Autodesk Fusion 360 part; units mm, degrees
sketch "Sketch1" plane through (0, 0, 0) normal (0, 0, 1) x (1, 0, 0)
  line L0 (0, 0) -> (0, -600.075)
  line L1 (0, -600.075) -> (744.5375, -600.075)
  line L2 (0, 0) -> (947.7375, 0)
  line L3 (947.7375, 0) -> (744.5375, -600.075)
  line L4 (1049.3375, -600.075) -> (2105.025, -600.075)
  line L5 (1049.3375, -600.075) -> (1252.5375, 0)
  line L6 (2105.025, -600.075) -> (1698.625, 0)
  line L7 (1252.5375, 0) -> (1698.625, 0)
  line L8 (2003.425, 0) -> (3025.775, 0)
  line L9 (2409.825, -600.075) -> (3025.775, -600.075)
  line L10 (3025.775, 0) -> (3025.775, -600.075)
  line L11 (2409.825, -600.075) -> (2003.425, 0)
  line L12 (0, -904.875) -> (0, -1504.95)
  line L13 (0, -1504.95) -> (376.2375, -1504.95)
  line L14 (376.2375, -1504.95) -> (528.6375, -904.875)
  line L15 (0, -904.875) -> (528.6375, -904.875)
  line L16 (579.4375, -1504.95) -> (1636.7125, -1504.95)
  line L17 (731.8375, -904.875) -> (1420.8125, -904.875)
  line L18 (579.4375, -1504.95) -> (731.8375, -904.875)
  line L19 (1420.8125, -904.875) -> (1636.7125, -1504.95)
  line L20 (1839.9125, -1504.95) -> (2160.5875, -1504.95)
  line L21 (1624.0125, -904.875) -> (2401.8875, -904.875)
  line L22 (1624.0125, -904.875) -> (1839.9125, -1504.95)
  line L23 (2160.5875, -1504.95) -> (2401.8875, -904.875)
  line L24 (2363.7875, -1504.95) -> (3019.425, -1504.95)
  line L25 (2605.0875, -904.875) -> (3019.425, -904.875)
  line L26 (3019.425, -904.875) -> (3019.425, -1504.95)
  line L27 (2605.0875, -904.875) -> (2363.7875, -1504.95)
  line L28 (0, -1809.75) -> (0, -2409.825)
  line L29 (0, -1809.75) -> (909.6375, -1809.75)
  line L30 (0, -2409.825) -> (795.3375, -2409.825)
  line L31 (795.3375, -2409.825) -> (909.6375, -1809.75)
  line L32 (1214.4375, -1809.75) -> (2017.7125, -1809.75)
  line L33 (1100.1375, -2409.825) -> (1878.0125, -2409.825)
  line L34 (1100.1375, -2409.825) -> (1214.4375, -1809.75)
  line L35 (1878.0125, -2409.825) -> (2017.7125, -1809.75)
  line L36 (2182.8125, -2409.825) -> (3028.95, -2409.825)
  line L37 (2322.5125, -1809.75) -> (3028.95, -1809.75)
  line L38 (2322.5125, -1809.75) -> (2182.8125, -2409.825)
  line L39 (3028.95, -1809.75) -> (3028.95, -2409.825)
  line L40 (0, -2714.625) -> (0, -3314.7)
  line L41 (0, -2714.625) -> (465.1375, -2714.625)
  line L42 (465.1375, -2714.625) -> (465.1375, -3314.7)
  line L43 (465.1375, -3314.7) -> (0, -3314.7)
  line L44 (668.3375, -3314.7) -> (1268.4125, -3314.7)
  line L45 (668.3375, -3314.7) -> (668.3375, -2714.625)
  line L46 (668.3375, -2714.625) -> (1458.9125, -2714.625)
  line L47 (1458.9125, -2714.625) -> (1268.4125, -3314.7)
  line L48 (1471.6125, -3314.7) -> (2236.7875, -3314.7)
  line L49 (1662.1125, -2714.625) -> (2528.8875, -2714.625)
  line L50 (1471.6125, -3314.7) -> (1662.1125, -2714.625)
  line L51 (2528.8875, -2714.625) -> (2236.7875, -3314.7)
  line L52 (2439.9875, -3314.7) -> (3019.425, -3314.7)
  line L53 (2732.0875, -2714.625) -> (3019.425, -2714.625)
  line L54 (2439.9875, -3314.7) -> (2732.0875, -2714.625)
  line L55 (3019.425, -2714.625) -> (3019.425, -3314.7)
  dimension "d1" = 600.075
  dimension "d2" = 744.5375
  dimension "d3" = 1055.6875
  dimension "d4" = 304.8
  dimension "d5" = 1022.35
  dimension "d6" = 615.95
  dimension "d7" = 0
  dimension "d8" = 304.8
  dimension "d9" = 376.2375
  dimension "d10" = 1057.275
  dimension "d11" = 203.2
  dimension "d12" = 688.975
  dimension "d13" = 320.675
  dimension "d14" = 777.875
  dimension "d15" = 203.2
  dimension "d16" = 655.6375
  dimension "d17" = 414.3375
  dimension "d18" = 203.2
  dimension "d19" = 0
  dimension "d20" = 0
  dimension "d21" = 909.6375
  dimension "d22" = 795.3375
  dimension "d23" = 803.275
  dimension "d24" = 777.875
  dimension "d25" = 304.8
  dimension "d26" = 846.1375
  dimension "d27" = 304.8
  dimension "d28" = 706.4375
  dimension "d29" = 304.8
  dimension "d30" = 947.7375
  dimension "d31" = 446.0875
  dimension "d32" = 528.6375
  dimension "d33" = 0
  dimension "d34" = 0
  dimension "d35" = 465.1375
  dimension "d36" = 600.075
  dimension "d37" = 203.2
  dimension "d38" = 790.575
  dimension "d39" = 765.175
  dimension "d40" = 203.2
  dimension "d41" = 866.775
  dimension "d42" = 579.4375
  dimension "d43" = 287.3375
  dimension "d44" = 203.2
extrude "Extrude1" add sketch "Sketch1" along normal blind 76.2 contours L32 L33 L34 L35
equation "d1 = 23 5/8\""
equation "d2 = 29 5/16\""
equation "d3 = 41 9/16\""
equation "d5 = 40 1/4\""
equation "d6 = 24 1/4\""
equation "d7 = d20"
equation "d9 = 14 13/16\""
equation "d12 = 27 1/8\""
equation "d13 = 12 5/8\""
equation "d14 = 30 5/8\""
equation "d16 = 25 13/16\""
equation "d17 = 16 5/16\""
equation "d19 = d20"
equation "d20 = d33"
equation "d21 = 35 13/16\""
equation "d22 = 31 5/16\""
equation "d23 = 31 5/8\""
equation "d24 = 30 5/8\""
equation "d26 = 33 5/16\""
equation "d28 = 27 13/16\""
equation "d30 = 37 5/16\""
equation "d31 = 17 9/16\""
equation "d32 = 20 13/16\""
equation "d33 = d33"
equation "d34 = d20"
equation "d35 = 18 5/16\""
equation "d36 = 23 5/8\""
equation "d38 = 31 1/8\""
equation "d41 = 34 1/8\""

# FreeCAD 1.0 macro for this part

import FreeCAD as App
import Part
import Sketcher
from FreeCAD import Vector
Q = App.Units.Quantity


def add_polygon(sketch, points):
    """Adds a closed chain of lines whose ends are joined by coincident constraints."""
    first, n = sketch.GeometryCount, len(points)
    for a, b in zip(points, points[1:] + points[:1]):
        sketch.addGeometry(Part.LineSegment(App.Vector(*a, 0), App.Vector(*b, 0)), False)
    for i in range(n):
        sketch.addConstraint(Sketcher.Constraint("Coincident", first + i, 2, first + (i + 1) % n, 1))

doc = App.newDocument("Part")
body = doc.addObject("PartDesign::Body", "Body")

# Sketch on XY plane
sketch1 = body.newObject("Sketcher::SketchObject", "Sketch")
sketch1.AttachmentSupport = (doc.getObject("XY_Plane"), [""])
sketch1.MapMode = "FlatFace"
add_polygon(sketch1, [(2018, -1810), (1214, -1810), (1100, -2410), (1878, -2410)])  # lines 0-3
sketch1.addConstraint([
    Sketcher.Constraint("Horizontal", 0),
    Sketcher.Constraint("Horizontal", 2),
    Sketcher.Constraint("DistanceX", 0, 2, 0, 1, Q("31.625 in")),
    Sketcher.Constraint("DistanceX", 2, 1, 2, 2, Q("30.625 in")),
    Sketcher.Constraint("DistanceY", 1, 2, 0, 2, Q("23.625 in")),
    Sketcher.Constraint("DistanceX", 1, 2, 0, 2, Q("4.5 in")),
    Sketcher.Constraint("DistanceY", 0, 2, -1, 1, Q("71.25 in")),
    Sketcher.Constraint("DistanceX", -1, 1, 0, 2, Q("47.8125 in")),
])
pad1 = body.newObject("PartDesign::Pad", "Pad")
pad1.Profile = sketch1
pad1.Length = Q("3 in")

doc.recompute()
